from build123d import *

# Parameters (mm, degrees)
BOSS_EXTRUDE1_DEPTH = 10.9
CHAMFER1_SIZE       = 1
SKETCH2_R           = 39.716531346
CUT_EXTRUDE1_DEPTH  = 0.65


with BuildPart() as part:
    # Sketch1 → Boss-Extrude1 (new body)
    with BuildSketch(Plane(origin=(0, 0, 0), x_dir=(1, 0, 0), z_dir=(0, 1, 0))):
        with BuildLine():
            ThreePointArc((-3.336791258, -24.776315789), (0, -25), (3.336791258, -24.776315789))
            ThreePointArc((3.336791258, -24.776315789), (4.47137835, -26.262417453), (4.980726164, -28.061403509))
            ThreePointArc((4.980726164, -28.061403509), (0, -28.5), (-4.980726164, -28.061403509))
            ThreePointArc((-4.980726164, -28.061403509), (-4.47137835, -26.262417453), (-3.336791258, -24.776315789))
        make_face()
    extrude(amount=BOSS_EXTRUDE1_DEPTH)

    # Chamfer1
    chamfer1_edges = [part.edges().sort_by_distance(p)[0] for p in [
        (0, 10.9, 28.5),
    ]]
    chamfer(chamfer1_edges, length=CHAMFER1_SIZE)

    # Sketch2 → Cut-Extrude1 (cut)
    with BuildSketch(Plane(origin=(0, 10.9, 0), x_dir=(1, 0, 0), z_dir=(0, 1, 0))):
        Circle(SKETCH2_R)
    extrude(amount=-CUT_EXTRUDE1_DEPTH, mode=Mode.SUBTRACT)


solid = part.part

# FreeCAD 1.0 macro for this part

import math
import FreeCAD as App
import Part
import Sketcher

V = App.Vector


def edges_at(feature, points):
    """Names of the edges that pass closest to the given points."""
    edges = feature.Shape.Edges
    near = lambda p: min(range(len(edges)), key=lambda i: edges[i].distToShape(Part.Vertex(*p))[0])
    return sorted({f"Edge{near(p) + 1}" for p in points})

doc = App.newDocument("Part")
body = doc.addObject("PartDesign::Body", "Body")

# Sketch on XZ plane
sketch1 = body.newObject("Sketcher::SketchObject", "Sketch")
sketch1.AttachmentSupport = (doc.getObject("XZ_Plane"), [""])
sketch1.MapMode = "FlatFace"
sketch1.addGeometry([
    Part.ArcOfCircle(Part.Circle(V(0, 0, 0), V(0, 0, 1), 25), math.radians(82.329748), math.radians(97.670252)),
    Part.ArcOfCircle(Part.Circle(V(0, 28.5, 0), V(0, 0, 1), 5), math.radians(-174.967587), math.radians(-131.863499)),
    Part.ArcOfCircle(Part.Circle(V(0, 0, 0), V(0, 0, 1), 28.5), math.radians(79.935173), math.radians(100.064827)),
    Part.ArcOfCircle(Part.Circle(V(0, 28.5, 0), V(0, 0, 1), 5), math.radians(-48.136501), math.radians(-5.032413)),
], False)
sketch1.addConstraint([
    Sketcher.Constraint("Coincident", 0, 2, 1, 2),
    Sketcher.Constraint("Coincident", 1, 1, 2, 2),
    Sketcher.Constraint("Coincident", 2, 1, 3, 2),
    Sketcher.Constraint("Coincident", 3, 1, 0, 1),
    Sketcher.Constraint("Coincident", 0, 3, -1, 1),
    Sketcher.Constraint("Coincident", 2, 3, -1, 1),
    Sketcher.Constraint("Coincident", 3, 3, 1, 3),
    Sketcher.Constraint("Equal", 1, 3),
    Sketcher.Constraint("PointOnObject", 1, 3, -2),
    Sketcher.Constraint("Radius", 0, 25.0),
    Sketcher.Constraint("Radius", 1, 5.0),
    Sketcher.Constraint("Radius", 2, 28.5),
    Sketcher.Constraint("DistanceY", -1, 1, 1, 3, 28.5),
])
pad1 = body.newObject("PartDesign::Pad", "Pad")
pad1.Profile = sketch1
pad1.Length = 10.9
pad1.Reversed = True
doc.recompute()

chamfer = body.newObject("PartDesign::Chamfer", "Chamfer")
chamfer.Base = (pad1, edges_at(pad1, [(0, 10.9, 28.5)]))
chamfer.Size = 1

# Sketch on XZ plane
sketch2 = body.newObject("Sketcher::SketchObject", "Sketch001")
sketch2.AttachmentSupport = (doc.getObject("XZ_Plane"), [""])
sketch2.MapMode = "FlatFace"
sketch2.AttachmentOffset = App.Placement(V(0, 0, -10.9), App.Rotation())
sketch2.addGeometry(Part.Circle(V(0, 0, 0), V(0, 0, 1), 39.716531), False)
sketch2.addConstraint([
    Sketcher.Constraint("Coincident", 0, 3, -1, 1),
    Sketcher.Constraint("Diameter", 0, 79.433063),
])
pocket1 = body.newObject("PartDesign::Pocket", "Pocket")
pocket1.Profile = sketch2
pocket1.Length = 0.65
pocket1.Reversed = True

doc.recompute()
